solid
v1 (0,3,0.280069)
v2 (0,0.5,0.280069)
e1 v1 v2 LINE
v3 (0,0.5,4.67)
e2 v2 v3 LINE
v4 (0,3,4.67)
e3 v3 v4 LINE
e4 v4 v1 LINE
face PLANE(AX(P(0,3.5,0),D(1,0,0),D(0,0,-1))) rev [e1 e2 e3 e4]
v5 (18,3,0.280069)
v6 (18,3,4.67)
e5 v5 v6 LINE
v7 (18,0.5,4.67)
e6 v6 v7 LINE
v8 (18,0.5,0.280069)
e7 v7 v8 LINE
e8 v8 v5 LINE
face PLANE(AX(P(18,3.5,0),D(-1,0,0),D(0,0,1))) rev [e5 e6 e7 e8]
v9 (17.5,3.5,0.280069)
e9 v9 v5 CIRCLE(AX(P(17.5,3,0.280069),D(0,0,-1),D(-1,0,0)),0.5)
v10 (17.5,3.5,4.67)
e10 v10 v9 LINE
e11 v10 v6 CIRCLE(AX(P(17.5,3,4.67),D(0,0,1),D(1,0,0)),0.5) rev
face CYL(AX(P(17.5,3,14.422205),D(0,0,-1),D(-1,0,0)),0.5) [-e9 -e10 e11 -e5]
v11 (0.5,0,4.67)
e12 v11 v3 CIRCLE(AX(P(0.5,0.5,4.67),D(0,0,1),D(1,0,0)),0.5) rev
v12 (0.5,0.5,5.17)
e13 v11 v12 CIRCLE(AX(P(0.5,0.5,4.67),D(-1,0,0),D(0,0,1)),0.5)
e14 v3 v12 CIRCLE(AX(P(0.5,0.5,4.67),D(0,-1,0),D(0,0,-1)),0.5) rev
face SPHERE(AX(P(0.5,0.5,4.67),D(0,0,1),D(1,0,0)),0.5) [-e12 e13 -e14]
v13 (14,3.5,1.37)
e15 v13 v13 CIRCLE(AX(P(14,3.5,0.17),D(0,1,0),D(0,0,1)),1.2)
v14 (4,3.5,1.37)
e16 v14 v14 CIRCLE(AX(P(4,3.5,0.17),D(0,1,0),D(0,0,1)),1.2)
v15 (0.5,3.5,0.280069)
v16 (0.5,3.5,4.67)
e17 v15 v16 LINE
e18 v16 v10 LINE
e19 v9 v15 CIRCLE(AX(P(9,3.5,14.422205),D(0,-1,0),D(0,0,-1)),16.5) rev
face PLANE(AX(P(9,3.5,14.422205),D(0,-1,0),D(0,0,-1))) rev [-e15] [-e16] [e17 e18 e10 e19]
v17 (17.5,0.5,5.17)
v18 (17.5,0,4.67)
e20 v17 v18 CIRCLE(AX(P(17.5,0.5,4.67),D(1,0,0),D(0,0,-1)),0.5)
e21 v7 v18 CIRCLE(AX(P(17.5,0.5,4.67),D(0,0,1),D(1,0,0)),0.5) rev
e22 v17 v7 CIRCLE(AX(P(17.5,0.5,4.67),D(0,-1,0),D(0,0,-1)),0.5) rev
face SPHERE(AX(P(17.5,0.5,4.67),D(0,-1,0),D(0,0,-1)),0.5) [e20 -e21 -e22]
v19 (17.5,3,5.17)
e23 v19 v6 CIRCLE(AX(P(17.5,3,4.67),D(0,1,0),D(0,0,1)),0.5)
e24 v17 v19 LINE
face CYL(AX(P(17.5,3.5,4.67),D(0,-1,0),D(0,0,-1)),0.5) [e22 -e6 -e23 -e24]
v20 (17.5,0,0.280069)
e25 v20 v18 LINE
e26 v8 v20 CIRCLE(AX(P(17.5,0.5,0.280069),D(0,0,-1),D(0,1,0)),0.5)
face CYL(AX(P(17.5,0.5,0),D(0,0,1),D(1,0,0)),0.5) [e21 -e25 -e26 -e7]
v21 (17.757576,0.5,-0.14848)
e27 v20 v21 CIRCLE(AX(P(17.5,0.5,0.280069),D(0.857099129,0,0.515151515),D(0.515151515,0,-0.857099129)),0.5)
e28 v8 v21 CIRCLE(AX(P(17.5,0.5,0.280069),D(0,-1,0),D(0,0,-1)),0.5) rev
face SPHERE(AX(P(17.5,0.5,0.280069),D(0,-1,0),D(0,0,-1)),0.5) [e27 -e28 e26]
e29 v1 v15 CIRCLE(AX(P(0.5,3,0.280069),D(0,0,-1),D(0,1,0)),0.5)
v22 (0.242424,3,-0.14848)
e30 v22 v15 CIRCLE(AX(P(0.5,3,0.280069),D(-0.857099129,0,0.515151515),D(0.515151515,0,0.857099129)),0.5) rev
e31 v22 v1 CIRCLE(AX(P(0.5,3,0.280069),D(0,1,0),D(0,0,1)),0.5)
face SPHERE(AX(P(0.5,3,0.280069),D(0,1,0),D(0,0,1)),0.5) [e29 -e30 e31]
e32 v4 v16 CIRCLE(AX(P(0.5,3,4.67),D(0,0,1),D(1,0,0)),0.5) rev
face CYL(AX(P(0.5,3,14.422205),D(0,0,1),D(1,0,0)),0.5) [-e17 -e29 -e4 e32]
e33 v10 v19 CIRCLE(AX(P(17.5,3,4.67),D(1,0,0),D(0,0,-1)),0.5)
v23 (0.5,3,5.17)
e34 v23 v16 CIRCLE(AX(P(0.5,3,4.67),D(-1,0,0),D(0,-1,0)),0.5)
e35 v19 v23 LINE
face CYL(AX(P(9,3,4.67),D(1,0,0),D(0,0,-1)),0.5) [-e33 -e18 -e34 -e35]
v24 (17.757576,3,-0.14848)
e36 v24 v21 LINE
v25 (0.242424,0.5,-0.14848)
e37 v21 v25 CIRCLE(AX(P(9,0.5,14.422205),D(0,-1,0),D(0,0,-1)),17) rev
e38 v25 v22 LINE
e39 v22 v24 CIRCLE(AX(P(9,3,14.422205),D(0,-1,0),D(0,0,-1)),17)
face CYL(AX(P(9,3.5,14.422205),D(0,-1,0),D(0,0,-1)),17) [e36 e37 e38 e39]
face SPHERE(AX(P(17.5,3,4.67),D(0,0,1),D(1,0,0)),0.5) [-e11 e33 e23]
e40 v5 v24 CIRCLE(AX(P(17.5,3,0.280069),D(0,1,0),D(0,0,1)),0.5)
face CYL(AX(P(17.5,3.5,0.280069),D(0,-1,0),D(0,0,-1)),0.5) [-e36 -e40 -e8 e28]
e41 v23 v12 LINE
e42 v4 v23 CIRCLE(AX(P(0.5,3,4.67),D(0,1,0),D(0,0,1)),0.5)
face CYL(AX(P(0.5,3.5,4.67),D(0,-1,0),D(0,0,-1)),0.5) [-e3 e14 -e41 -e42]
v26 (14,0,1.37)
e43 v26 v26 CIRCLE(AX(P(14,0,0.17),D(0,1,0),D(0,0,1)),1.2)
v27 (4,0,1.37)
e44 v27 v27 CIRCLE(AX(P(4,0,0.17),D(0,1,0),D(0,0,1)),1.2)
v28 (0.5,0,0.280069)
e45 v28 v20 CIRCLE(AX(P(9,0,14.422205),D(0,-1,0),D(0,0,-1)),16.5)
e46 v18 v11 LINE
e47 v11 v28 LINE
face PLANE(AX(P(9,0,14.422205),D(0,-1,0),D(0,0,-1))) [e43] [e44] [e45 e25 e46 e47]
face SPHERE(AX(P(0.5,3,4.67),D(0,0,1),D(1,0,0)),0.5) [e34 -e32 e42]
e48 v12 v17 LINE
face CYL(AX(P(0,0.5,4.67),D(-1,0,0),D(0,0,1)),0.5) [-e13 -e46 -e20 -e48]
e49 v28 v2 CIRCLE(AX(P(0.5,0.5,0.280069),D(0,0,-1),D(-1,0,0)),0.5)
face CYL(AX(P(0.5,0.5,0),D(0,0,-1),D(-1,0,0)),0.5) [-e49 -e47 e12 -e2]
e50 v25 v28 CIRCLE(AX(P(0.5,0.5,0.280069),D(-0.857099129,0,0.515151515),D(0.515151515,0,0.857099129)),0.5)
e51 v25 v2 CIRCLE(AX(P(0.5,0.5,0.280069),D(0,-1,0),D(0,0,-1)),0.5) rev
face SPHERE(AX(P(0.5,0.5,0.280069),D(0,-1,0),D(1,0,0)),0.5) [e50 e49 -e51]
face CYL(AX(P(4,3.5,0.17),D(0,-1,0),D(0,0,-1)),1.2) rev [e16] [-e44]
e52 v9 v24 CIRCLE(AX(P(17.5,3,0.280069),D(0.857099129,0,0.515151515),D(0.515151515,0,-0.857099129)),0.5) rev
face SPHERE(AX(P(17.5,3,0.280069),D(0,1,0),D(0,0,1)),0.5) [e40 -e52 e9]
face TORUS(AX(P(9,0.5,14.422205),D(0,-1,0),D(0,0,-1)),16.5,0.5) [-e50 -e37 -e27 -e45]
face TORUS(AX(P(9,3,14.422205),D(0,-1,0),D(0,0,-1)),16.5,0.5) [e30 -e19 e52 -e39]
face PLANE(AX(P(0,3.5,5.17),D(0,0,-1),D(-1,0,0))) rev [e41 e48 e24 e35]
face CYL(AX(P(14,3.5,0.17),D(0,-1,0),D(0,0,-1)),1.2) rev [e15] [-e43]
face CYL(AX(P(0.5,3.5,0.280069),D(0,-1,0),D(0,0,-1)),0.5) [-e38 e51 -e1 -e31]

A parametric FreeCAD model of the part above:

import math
import FreeCAD as App
import Part
import Sketcher

V = App.Vector


def edges_at(feature, points):
    """Names of the edges that pass closest to the given points."""
    edges = feature.Shape.Edges
    near = lambda p: min(range(len(edges)), key=lambda i: edges[i].distToShape(Part.Vertex(*p))[0])
    return sorted({f"Edge{near(p) + 1}" for p in points})

doc = App.newDocument("Part")
body = doc.addObject("PartDesign::Body", "Body")

# Sketch on XZ plane
sketch1 = body.newObject("Sketcher::SketchObject", "Sketch")
sketch1.AttachmentSupport = (doc.getObject("XZ_Plane"), [""])
sketch1.MapMode = "FlatFace"
sketch1.addGeometry([
    Part.LineSegment(V(0, 0, 0), V(0, 5.17, 0)),  # 0
    Part.LineSegment(V(0, 5.17, 0), V(18, 5.17, 0)),  # 1
    Part.LineSegment(V(18, 5.17, 0), V(18, 0, 0)),  # 2
    Part.ArcOfCircle(Part.Circle(V(9, 14.422205, 0), V(0, 0, 1), 17), math.radians(-121.965719), math.radians(-58.034281)),  # 3
    Part.Circle(V(4, 0.17, 0), V(0, 0, 1), 1.2),  # 4
    Part.Circle(V(14, 0.17, 0), V(0, 0, 1), 1.2),  # 5
], False)
sketch1.addConstraint([
    Sketcher.Constraint("Coincident", 0, 2, 1, 1),
    Sketcher.Constraint("Coincident", 1, 2, 2, 1),
    Sketcher.Constraint("Coincident", 2, 2, 3, 2),
    Sketcher.Constraint("Coincident", 3, 1, 0, 1),
    Sketcher.Constraint("Vertical", 0),
    Sketcher.Constraint("Horizontal", 1),
    Sketcher.Constraint("Vertical", 2),
    Sketcher.Constraint("Coincident", 3, 1, -1, 1),
    Sketcher.Constraint("Equal", 4, 5),
    Sketcher.Constraint("PointOnObject", 2, 2, -1),
    Sketcher.Constraint("Horizontal", 4, 3, 5, 3),
    Sketcher.Constraint("Radius", 3, 17.0),
    Sketcher.Constraint("Diameter", 4, 2.4),
    Sketcher.Constraint("DistanceX", 1, 1, 1, 2, 18.0),
    Sketcher.Constraint("DistanceX", -1, 1, 4, 3, 4.0),
    Sketcher.Constraint("DistanceX", -1, 1, 5, 3, 14.0),
    Sketcher.Constraint("DistanceY", 4, 3, 0, 2, 5.0),
    Sketcher.Constraint("DistanceY", 0, 1, 0, 2, 5.17),
])
pad1 = body.newObject("PartDesign::Pad", "Pad")
pad1.Profile = sketch1
pad1.Length = 3.5
pad1.Reversed = True
doc.recompute()

fillet = body.newObject("PartDesign::Fillet", "Fillet")
fillet.Base = (pad1, edges_at(pad1, [
    (0, 3.5, 2.585),
    (9, 3.5, 5.17),
    (18, 3.5, 2.585),
    (9, 0, 5.17),
    (0, 0, 2.585),
    (9, 0, -2.578),
    (18, 0, 2.585),
    (18, 1.75, 5.17),
    (0, 1.75, 5.17),
    (0, 1.75, 0),
    (18, 1.75, 0),
    (9, 3.5, -2.578),
]))
fillet.Radius = 0.5

doc.recompute()
